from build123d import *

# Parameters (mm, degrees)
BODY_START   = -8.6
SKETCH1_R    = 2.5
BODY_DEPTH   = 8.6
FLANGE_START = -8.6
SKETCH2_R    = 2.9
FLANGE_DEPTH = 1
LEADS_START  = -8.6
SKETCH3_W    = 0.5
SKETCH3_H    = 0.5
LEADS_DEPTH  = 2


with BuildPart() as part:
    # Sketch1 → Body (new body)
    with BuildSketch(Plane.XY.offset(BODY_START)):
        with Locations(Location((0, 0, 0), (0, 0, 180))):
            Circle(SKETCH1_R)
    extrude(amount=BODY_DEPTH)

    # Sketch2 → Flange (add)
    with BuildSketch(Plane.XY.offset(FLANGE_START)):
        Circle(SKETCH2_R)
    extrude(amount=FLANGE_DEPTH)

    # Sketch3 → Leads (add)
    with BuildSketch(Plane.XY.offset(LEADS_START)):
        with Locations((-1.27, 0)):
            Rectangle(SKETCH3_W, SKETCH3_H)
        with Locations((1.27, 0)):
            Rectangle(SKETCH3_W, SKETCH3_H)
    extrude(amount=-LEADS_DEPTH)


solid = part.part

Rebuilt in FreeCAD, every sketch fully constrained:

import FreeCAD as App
import Part
import Sketcher
from FreeCAD import Vector

doc = App.newDocument("Part")
params = doc.addObject("Spreadsheet::Sheet", "Params")
for row, (alias, value) in enumerate([
    ("sketch1_diameter", "5 mm"),
    ("pad1_length", "8.6 mm"),
    ("sketch2_diameter", "5.8 mm"),
    ("pad2_length", "1 mm"),
    ("sketch3_width", "0.5 mm"),
    ("pad3_length", "2 mm"),
], start=1):
    params.set(f"A{row}", alias)
    params.set(f"B{row}", "=" + value)
    params.setAlias(f"B{row}", alias)

body = doc.addObject("PartDesign::Body", "Body")

# Sketch on XY plane
sketch1 = doc.addObject("Sketcher::SketchObject", "Sketch")
body.addObject(sketch1)
sketch1.AttachmentSupport = (doc.XY_Plane, [""])
sketch1.MapMode = "FlatFace"
sketch1.AttachmentOffset = App.Placement(Vector(0, 0, -8.6), App.Rotation())
sketch1.addGeometry(Part.Circle(Vector(0, 0, 0), Vector(0, 0, 1), 2.5), False)
sketch1.addConstraint([
    Sketcher.Constraint("Coincident", 0, 3, -1, 1),
    Sketcher.Constraint("Diameter", 0, 5.0),
])
sketch1.setExpression("Constraints[1]", "Params.sketch1_diameter")
pad1 = doc.addObject("PartDesign::Pad", "Pad")
body.addObject(pad1)
pad1.Profile = sketch1
pad1.setExpression("Length", "Params.pad1_length")

# Sketch on XY plane
sketch2 = doc.addObject("Sketcher::SketchObject", "Sketch001")
body.addObject(sketch2)
sketch2.AttachmentSupport = (doc.XY_Plane, [""])
sketch2.MapMode = "FlatFace"
sketch2.AttachmentOffset = App.Placement(Vector(0, 0, -8.6), App.Rotation())
sketch2.addGeometry(Part.Circle(Vector(0, 0, 0), Vector(0, 0, 1), 2.9), False)
sketch2.addConstraint([
    Sketcher.Constraint("Coincident", 0, 3, -1, 1),
    Sketcher.Constraint("Diameter", 0, 5.8),
])
sketch2.setExpression("Constraints[1]", "Params.sketch2_diameter")
pad2 = doc.addObject("PartDesign::Pad", "Pad001")
body.addObject(pad2)
pad2.Profile = sketch2
pad2.setExpression("Length", "Params.pad2_length")

# Sketch on XY plane
sketch3 = doc.addObject("Sketcher::SketchObject", "Sketch002")
body.addObject(sketch3)
sketch3.AttachmentSupport = (doc.XY_Plane, [""])
sketch3.MapMode = "FlatFace"
sketch3.AttachmentOffset = App.Placement(Vector(0, 0, -8.6), App.Rotation())
sketch3.addGeometry([
    Part.LineSegment(Vector(-1.5, 0.2, 0), Vector(-1.5, -0.2, 0)),  # 0
    Part.LineSegment(Vector(-1.5, -0.2, 0), Vector(-1, -0.2, 0)),  # 1
    Part.LineSegment(Vector(-1, -0.2, 0), Vector(-1, 0.2, 0)),  # 2
    Part.LineSegment(Vector(-1, 0.2, 0), Vector(-1.5, 0.2, 0)),  # 3
    Part.LineSegment(Vector(1, 0.2, 0), Vector(1, -0.2, 0)),  # 4
    Part.LineSegment(Vector(1, -0.2, 0), Vector(1.5, -0.2, 0)),  # 5
    Part.LineSegment(Vector(1.5, -0.2, 0), Vector(1.5, 0.2, 0)),  # 6
    Part.LineSegment(Vector(1.5, 0.2, 0), Vector(1, 0.2, 0)),  # 7
], False)
sketch3.addConstraint([
    Sketcher.Constraint("Coincident", 0, 2, 1, 1),
    Sketcher.Constraint("Coincident", 1, 2, 2, 1),
    Sketcher.Constraint("Coincident", 2, 2, 3, 1),
    Sketcher.Constraint("Coincident", 3, 2, 0, 1),
    Sketcher.Constraint("Coincident", 4, 2, 5, 1),
    Sketcher.Constraint("Coincident", 5, 2, 6, 1),
    Sketcher.Constraint("Coincident", 6, 2, 7, 1),
    Sketcher.Constraint("Coincident", 7, 2, 4, 1),
    Sketcher.Constraint("Vertical", 0),
    Sketcher.Constraint("Horizontal", 1),
    Sketcher.Constraint("Vertical", 2),
    Sketcher.Constraint("Horizontal", 3),
    Sketcher.Constraint("Vertical", 4),
    Sketcher.Constraint("Horizontal", 5),
    Sketcher.Constraint("Vertical", 6),
    Sketcher.Constraint("Horizontal", 7),
    Sketcher.Constraint("Symmetric", 2, 2, 4, 2, -1, 1),
    Sketcher.Constraint("Symmetric", 0, 2, 6, 2, -1, 1),
    Sketcher.Constraint("Horizontal", 1, 2, 4, 2),
    Sketcher.Constraint("Equal", 7, 0),
    Sketcher.Constraint("DistanceX", 1, 1, 1, 2, 0.5),
    Sketcher.Constraint("DistanceX", 0, 2, -1, 1, 1.52),
])
sketch3.setExpression("Constraints[20]", "Params.sketch3_width")
pad3 = doc.addObject("PartDesign::Pad", "Pad002")
body.addObject(pad3)
pad3.Profile = sketch3
pad3.setExpression("Length", "Params.pad3_length")
pad3.Reversed = True

doc.recompute()
